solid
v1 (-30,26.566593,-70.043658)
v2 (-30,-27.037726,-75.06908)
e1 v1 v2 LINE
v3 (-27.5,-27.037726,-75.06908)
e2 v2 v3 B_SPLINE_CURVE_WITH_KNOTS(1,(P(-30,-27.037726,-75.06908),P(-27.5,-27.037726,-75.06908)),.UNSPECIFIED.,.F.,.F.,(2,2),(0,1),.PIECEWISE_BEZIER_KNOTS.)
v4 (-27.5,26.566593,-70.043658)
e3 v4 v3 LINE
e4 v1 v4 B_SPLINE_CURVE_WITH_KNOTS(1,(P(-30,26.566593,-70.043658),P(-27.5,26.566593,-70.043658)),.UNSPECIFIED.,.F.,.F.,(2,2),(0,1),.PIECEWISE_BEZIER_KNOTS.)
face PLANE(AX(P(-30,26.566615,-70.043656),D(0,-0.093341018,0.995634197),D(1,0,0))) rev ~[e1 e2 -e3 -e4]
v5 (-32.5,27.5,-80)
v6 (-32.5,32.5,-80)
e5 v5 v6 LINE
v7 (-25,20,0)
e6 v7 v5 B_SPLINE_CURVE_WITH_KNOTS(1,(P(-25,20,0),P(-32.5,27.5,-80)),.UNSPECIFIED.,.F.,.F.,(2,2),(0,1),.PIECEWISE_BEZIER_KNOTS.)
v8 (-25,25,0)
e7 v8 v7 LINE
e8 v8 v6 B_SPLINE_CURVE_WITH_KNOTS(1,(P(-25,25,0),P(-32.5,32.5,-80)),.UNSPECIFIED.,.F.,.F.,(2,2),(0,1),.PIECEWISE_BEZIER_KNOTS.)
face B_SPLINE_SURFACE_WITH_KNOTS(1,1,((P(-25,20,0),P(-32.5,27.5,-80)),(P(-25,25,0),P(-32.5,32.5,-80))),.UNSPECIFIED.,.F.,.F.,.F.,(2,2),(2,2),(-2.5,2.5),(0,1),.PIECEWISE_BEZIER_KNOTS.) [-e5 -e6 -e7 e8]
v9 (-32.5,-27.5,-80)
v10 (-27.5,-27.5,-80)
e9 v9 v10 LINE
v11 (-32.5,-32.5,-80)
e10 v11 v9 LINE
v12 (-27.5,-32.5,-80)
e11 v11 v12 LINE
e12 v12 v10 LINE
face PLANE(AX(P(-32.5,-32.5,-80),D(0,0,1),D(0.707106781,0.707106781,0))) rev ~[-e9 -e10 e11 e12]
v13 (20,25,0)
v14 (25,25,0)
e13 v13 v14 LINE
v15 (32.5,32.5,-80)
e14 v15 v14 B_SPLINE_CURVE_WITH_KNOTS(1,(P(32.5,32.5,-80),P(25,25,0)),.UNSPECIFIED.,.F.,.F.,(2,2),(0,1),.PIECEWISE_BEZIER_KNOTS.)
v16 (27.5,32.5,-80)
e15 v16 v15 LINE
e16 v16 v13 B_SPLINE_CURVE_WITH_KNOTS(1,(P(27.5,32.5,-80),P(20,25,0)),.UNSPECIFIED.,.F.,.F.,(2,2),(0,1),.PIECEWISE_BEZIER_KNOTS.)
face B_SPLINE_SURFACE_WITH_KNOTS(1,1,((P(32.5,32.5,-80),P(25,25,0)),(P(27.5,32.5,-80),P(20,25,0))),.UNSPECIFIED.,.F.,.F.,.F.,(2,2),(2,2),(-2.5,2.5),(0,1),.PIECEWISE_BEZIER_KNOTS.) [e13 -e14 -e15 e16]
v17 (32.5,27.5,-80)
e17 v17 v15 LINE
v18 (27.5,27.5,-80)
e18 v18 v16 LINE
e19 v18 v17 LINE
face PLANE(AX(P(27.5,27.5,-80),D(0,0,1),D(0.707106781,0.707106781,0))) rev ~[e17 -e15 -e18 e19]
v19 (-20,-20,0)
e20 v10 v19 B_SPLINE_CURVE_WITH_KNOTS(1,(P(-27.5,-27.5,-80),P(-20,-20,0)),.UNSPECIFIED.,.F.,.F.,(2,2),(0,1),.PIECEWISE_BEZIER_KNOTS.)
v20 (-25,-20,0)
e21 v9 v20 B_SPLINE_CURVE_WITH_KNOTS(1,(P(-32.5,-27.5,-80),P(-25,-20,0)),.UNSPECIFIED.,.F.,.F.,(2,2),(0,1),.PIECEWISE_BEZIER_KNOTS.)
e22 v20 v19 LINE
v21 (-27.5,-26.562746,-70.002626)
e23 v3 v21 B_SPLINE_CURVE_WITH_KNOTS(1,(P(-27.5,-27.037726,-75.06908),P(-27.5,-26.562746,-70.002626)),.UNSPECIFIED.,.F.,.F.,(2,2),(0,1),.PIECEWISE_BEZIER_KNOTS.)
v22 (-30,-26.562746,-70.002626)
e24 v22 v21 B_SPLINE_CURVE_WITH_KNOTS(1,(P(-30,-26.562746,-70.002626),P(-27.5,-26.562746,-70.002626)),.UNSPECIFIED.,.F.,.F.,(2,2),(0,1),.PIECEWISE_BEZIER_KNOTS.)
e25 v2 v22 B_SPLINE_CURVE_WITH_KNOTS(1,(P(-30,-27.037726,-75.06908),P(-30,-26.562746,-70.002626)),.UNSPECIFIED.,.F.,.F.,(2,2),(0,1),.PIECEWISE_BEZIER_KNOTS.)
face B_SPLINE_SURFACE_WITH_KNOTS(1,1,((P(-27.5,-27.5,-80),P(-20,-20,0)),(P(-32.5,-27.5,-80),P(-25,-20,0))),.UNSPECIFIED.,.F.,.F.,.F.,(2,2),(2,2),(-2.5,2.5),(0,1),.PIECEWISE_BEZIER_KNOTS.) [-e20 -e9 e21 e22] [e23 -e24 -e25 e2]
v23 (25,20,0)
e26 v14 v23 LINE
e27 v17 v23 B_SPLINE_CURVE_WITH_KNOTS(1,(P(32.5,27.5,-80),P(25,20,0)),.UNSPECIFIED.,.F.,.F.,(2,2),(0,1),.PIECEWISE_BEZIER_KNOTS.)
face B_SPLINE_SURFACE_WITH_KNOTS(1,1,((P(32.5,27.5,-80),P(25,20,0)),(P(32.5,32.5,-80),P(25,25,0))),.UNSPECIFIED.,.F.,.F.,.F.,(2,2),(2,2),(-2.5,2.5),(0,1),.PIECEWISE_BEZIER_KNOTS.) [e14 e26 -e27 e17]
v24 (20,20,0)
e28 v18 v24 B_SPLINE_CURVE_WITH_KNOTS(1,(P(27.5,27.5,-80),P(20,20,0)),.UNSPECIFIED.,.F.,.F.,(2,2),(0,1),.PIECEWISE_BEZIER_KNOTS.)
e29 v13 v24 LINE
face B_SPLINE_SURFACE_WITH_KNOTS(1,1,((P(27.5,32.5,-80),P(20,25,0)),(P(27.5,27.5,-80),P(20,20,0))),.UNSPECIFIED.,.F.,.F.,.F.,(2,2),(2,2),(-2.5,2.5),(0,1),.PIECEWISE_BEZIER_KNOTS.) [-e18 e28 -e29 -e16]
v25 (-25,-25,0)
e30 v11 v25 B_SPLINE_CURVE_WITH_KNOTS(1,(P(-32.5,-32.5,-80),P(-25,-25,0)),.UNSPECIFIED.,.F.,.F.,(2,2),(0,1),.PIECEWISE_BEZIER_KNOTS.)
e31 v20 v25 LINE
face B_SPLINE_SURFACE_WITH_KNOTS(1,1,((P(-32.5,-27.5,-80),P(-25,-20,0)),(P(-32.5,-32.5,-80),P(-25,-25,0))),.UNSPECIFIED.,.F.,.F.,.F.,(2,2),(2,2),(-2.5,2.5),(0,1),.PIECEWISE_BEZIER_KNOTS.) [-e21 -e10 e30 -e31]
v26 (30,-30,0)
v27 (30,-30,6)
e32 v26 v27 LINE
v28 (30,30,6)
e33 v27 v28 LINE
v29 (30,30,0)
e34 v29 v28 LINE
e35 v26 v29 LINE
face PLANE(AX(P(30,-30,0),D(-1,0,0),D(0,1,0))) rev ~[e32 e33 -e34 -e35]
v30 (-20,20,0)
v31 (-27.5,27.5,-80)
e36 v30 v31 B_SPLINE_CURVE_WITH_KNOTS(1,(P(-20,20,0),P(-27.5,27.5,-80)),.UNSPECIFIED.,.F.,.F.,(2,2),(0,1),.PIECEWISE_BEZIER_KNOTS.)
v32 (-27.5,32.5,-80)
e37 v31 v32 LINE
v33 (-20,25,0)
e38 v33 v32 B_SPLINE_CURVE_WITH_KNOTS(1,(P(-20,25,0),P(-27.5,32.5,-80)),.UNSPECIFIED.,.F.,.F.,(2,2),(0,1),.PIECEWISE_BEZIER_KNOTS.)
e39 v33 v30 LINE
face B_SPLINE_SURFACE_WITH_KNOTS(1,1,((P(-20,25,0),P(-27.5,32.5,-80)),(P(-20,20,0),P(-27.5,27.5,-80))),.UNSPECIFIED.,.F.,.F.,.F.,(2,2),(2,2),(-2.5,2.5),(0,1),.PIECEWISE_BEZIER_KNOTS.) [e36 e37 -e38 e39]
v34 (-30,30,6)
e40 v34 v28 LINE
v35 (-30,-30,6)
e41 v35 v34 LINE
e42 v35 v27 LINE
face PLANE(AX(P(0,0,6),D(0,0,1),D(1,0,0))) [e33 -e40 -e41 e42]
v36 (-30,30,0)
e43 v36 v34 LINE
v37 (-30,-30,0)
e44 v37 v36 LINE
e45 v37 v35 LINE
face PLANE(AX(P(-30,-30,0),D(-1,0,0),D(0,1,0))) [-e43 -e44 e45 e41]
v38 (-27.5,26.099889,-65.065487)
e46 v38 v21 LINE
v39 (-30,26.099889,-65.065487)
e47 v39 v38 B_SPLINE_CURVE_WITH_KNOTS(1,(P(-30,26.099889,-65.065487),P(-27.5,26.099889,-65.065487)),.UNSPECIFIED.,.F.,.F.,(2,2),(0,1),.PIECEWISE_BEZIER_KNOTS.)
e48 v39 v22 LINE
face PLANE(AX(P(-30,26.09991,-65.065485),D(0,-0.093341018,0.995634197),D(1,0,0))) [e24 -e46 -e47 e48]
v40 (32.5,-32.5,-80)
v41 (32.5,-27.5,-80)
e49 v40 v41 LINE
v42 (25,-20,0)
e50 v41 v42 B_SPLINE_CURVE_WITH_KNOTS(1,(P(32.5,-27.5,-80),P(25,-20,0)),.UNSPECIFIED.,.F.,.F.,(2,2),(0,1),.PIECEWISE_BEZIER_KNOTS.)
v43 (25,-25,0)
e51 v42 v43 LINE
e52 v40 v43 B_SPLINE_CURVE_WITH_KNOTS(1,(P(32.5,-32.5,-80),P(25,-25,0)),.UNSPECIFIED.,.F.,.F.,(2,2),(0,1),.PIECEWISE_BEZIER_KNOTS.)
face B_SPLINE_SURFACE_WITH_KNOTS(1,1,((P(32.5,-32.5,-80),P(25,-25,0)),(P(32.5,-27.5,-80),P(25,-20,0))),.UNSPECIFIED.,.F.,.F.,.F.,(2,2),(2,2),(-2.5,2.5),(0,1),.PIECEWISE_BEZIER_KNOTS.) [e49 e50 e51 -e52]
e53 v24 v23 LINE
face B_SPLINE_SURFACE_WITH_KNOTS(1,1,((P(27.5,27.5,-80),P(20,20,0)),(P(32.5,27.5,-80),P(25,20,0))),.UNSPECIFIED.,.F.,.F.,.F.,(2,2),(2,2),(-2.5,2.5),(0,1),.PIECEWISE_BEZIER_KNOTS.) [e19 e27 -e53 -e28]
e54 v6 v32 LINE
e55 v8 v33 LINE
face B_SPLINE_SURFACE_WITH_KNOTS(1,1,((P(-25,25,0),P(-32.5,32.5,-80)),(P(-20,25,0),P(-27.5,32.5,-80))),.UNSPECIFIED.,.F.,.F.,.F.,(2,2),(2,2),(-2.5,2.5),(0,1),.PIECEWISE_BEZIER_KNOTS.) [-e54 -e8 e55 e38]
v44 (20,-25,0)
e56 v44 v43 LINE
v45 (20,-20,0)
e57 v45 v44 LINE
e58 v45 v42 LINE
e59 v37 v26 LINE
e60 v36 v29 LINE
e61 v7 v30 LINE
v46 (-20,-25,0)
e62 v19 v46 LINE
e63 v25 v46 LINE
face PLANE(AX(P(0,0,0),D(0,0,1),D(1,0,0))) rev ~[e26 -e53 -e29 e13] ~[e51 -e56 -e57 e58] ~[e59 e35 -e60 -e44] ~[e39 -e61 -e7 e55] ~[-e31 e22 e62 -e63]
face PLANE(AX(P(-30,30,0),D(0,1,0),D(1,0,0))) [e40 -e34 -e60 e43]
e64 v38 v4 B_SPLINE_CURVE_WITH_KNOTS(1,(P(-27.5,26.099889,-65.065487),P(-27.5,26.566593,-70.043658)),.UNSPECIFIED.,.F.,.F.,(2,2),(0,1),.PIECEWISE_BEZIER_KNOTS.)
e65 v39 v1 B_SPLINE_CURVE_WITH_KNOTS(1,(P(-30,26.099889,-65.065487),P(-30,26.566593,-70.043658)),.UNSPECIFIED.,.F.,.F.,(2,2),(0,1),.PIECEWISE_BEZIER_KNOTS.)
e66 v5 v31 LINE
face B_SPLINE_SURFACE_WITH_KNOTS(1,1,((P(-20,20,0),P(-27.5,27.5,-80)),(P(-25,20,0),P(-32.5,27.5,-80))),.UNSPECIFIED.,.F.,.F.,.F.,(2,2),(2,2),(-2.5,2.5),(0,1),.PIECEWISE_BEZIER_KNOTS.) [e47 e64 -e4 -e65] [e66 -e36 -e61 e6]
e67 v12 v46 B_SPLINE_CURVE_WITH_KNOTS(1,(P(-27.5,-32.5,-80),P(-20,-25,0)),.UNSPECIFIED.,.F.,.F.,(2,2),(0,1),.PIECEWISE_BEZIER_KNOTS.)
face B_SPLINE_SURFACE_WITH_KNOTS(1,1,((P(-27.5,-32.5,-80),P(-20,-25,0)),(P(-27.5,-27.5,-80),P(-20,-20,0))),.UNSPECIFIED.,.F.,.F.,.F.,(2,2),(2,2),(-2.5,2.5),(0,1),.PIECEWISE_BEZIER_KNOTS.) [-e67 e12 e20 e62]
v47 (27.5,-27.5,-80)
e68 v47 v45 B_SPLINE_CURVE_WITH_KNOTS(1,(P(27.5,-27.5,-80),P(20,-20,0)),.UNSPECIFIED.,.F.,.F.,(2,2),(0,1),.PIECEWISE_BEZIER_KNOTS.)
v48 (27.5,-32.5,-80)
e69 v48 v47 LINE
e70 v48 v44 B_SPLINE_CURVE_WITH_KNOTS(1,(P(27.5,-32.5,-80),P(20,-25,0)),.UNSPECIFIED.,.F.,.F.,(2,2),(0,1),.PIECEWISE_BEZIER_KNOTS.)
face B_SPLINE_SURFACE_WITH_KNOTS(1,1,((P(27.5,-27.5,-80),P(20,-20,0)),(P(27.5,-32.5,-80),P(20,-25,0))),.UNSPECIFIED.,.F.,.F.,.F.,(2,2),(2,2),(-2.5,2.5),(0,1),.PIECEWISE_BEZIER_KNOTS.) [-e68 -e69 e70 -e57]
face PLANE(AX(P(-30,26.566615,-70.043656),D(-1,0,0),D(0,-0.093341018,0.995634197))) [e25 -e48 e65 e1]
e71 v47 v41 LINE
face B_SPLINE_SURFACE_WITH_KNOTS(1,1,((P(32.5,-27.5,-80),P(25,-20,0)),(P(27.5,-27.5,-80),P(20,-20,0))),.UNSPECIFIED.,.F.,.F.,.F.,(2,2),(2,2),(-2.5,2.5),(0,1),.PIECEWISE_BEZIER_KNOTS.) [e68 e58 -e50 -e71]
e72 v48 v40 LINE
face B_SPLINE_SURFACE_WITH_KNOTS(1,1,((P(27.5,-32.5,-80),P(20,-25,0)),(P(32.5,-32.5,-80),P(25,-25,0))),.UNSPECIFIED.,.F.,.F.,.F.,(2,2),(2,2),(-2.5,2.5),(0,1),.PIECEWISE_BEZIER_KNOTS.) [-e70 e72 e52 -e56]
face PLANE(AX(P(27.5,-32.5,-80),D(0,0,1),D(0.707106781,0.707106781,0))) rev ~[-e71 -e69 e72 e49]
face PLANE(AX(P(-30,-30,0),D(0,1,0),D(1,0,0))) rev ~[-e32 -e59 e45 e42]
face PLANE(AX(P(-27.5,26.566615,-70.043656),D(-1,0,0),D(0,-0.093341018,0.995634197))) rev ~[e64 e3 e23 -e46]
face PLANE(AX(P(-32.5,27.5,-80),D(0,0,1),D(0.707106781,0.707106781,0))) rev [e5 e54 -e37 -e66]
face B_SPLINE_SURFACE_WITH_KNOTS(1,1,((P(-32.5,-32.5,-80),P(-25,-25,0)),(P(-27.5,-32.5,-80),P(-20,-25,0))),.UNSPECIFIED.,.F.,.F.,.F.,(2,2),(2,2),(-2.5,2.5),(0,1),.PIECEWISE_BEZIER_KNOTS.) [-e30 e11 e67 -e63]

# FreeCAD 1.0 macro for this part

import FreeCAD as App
import Part
import Sketcher

V = App.Vector
Q = App.Units.Quantity

doc = App.newDocument("Part")
body = doc.addObject("PartDesign::Body", "Body")

# Sketch on XY plane
sketch1 = doc.addObject("Sketcher::SketchObject", "Sketch")
body.addObject(sketch1)
sketch1.AttachmentSupport = (doc.XY_Plane, [""])
sketch1.MapMode = "FlatFace"
sketch1.addGeometry([
    Part.LineSegment(V(-30, 30, 0), V(-30, -30, 0)),
    Part.LineSegment(V(-30, -30, 0), V(30, -30, 0)),
    Part.LineSegment(V(30, -30, 0), V(30, 30, 0)),
    Part.LineSegment(V(30, 30, 0), V(-30, 30, 0)),
], False)
sketch1.addConstraint([
    Sketcher.Constraint("Coincident", 0, 2, 1, 1),
    Sketcher.Constraint("Coincident", 1, 2, 2, 1),
    Sketcher.Constraint("Coincident", 2, 2, 3, 1),
    Sketcher.Constraint("Coincident", 3, 2, 0, 1),
    Sketcher.Constraint("Vertical", 0),
    Sketcher.Constraint("Horizontal", 1),
    Sketcher.Constraint("Vertical", 2),
    Sketcher.Constraint("Horizontal", 3),
    Sketcher.Constraint("Symmetric", 0, 2, 2, 2, -1, 1),
    Sketcher.Constraint("Equal", 3, 0),
    Sketcher.Constraint("DistanceX", 1, 1, 1, 2, Q("60 mm")),
])
pad1 = doc.addObject("PartDesign::Pad", "Pad")
body.addObject(pad1)
pad1.Profile = sketch1
pad1.Length = 6

# Sketch on XY plane
sketch2 = doc.addObject("Sketcher::SketchObject", "Sketch001")
body.addObject(sketch2)
sketch2.AttachmentSupport = (doc.XY_Plane, [""])
sketch2.MapMode = "FlatFace"
sketch2.addGeometry([
    Part.LineSegment(V(-25, 20, 0), V(-25, 25, 0)),
    Part.LineSegment(V(-25, 25, 0), V(-20, 25, 0)),
    Part.LineSegment(V(-20, 25, 0), V(-20, 20, 0)),
    Part.LineSegment(V(-20, 20, 0), V(-25, 20, 0)),
], False)
sketch2.addConstraint([
    Sketcher.Constraint("Coincident", 0, 2, 1, 1),
    Sketcher.Constraint("Coincident", 1, 2, 2, 1),
    Sketcher.Constraint("Coincident", 2, 2, 3, 1),
    Sketcher.Constraint("Coincident", 3, 2, 0, 1),
    Sketcher.Constraint("Vertical", 0),
    Sketcher.Constraint("Horizontal", 1),
    Sketcher.Constraint("Vertical", 2),
    Sketcher.Constraint("Horizontal", 3),
    Sketcher.Constraint("Equal", 3, 0),
    Sketcher.Constraint("DistanceX", 1, 1, 1, 2, Q("5 mm")),
    Sketcher.Constraint("DistanceX", 0, 2, -1, 1, Q("25 mm")),
    Sketcher.Constraint("DistanceY", -1, 1, 0, 2, Q("25 mm")),
])

# Sketch on XY plane
sketch3 = doc.addObject("Sketcher::SketchObject", "Sketch002")
body.addObject(sketch3)
sketch3.AttachmentSupport = (doc.XY_Plane, [""])
sketch3.MapMode = "FlatFace"
sketch3.AttachmentOffset = App.Placement(V(0, 0, -80), App.Rotation())
sketch3.addGeometry([
    Part.LineSegment(V(-32, 32, 0), V(-32, 28, 0)),
    Part.LineSegment(V(-32, 28, 0), V(-28, 28, 0)),
    Part.LineSegment(V(-28, 28, 0), V(-28, 32, 0)),
    Part.LineSegment(V(-28, 32, 0), V(-32, 32, 0)),
], False)
sketch3.addConstraint([
    Sketcher.Constraint("Coincident", 0, 2, 1, 1),
    Sketcher.Constraint("Coincident", 1, 2, 2, 1),
    Sketcher.Constraint("Coincident", 2, 2, 3, 1),
    Sketcher.Constraint("Coincident", 3, 2, 0, 1),
    Sketcher.Constraint("Vertical", 0),
    Sketcher.Constraint("Horizontal", 1),
    Sketcher.Constraint("Vertical", 2),
    Sketcher.Constraint("Horizontal", 3),
    Sketcher.Constraint("Equal", 3, 0),
    Sketcher.Constraint("DistanceX", 1, 1, 1, 2, Q("5 mm")),
    Sketcher.Constraint("DistanceX", 0, 2, -1, 1, Q("32.5 mm")),
    Sketcher.Constraint("DistanceY", -1, 1, 0, 2, Q("27.5 mm")),
])

additiveloft = doc.addObject("PartDesign::AdditiveLoft", "AdditiveLoft")
body.addObject(additiveloft)
additiveloft.Profile = sketch2
additiveloft.Sections = [sketch3]

# Sketch on XY plane
sketch4 = doc.addObject("Sketcher::SketchObject", "Sketch003")
body.addObject(sketch4)
sketch4.AttachmentSupport = (doc.XY_Plane, [""])
sketch4.MapMode = "FlatFace"
sketch4.AttachmentOffset = App.Placement(V(0, 0, -80), App.Rotation())
sketch4.addGeometry([
    Part.LineSegment(V(-32, -28, 0), V(-32, -32, 0)),
    Part.LineSegment(V(-32, -32, 0), V(-28, -32, 0)),
    Part.LineSegment(V(-28, -32, 0), V(-28, -28, 0)),
    Part.LineSegment(V(-28, -28, 0), V(-32, -28, 0)),
], False)
sketch4.addConstraint([
    Sketcher.Constraint("Coincident", 0, 2, 1, 1),
    Sketcher.Constraint("Coincident", 1, 2, 2, 1),
    Sketcher.Constraint("Coincident", 2, 2, 3, 1),
    Sketcher.Constraint("Coincident", 3, 2, 0, 1),
    Sketcher.Constraint("Vertical", 0),
    Sketcher.Constraint("Horizontal", 1),
    Sketcher.Constraint("Vertical", 2),
    Sketcher.Constraint("Horizontal", 3),
    Sketcher.Constraint("Equal", 3, 0),
    Sketcher.Constraint("DistanceX", 1, 1, 1, 2, Q("5 mm")),
    Sketcher.Constraint("DistanceX", 0, 2, -1, 1, Q("32.5 mm")),
    Sketcher.Constraint("DistanceY", 0, 2, -1, 1, Q("32.5 mm")),
])

# Sketch on XY plane
sketch5 = doc.addObject("Sketcher::SketchObject", "Sketch004")
body.addObject(sketch5)
sketch5.AttachmentSupport = (doc.XY_Plane, [""])
sketch5.MapMode = "FlatFace"
sketch5.addGeometry([
    Part.LineSegment(V(-25, -25, 0), V(-25, -20, 0)),
    Part.LineSegment(V(-25, -20, 0), V(-20, -20, 0)),
    Part.LineSegment(V(-20, -20, 0), V(-20, -25, 0)),
    Part.LineSegment(V(-20, -25, 0), V(-25, -25, 0)),
], False)
sketch5.addConstraint([
    Sketcher.Constraint("Coincident", 0, 2, 1, 1),
    Sketcher.Constraint("Coincident", 1, 2, 2, 1),
    Sketcher.Constraint("Coincident", 2, 2, 3, 1),
    Sketcher.Constraint("Coincident", 3, 2, 0, 1),
    Sketcher.Constraint("Vertical", 0),
    Sketcher.Constraint("Horizontal", 1),
    Sketcher.Constraint("Vertical", 2),
    Sketcher.Constraint("Horizontal", 3),
    Sketcher.Constraint("Equal", 3, 0),
    Sketcher.Constraint("DistanceX", 1, 1, 1, 2, Q("5 mm")),
    Sketcher.Constraint("DistanceX", 0, 2, -1, 1, Q("25 mm")),
    Sketcher.Constraint("DistanceY", 0, 2, -1, 1, Q("20 mm")),
])

additiveloft2 = doc.addObject("PartDesign::AdditiveLoft", "AdditiveLoft001")
body.addObject(additiveloft2)
additiveloft2.Profile = sketch4
additiveloft2.Sections = [sketch5]

# Sketch on XY plane
sketch6 = doc.addObject("Sketcher::SketchObject", "Sketch005")
body.addObject(sketch6)
sketch6.AttachmentSupport = (doc.XY_Plane, [""])
sketch6.MapMode = "FlatFace"
sketch6.AttachmentOffset = App.Placement(V(0, 0, -80), App.Rotation())
sketch6.addGeometry([
    Part.LineSegment(V(28, -28, 0), V(28, -32, 0)),
    Part.LineSegment(V(28, -32, 0), V(32, -32, 0)),
    Part.LineSegment(V(32, -32, 0), V(32, -28, 0)),
    Part.LineSegment(V(32, -28, 0), V(28, -28, 0)),
], False)
sketch6.addConstraint([
    Sketcher.Constraint("Coincident", 0, 2, 1, 1),
    Sketcher.Constraint("Coincident", 1, 2, 2, 1),
    Sketcher.Constraint("Coincident", 2, 2, 3, 1),
    Sketcher.Constraint("Coincident", 3, 2, 0, 1),
    Sketcher.Constraint("Vertical", 0),
    Sketcher.Constraint("Horizontal", 1),
    Sketcher.Constraint("Vertical", 2),
    Sketcher.Constraint("Horizontal", 3),
    Sketcher.Constraint("Equal", 3, 0),
    Sketcher.Constraint("DistanceX", 1, 1, 1, 2, Q("5 mm")),
    Sketcher.Constraint("DistanceX", -1, 1, 0, 2, Q("27.5 mm")),
    Sketcher.Constraint("DistanceY", 0, 2, -1, 1, Q("32.5 mm")),
])

# Sketch on XY plane
sketch7 = doc.addObject("Sketcher::SketchObject", "Sketch006")
body.addObject(sketch7)
sketch7.AttachmentSupport = (doc.XY_Plane, [""])
sketch7.MapMode = "FlatFace"
sketch7.addGeometry([
    Part.LineSegment(V(20, -25, 0), V(20, -20, 0)),
    Part.LineSegment(V(20, -20, 0), V(25, -20, 0)),
    Part.LineSegment(V(25, -20, 0), V(25, -25, 0)),
    Part.LineSegment(V(25, -25, 0), V(20, -25, 0)),
], False)
sketch7.addConstraint([
    Sketcher.Constraint("Coincident", 0, 2, 1, 1),
    Sketcher.Constraint("Coincident", 1, 2, 2, 1),
    Sketcher.Constraint("Coincident", 2, 2, 3, 1),
    Sketcher.Constraint("Coincident", 3, 2, 0, 1),
    Sketcher.Constraint("Vertical", 0),
    Sketcher.Constraint("Horizontal", 1),
    Sketcher.Constraint("Vertical", 2),
    Sketcher.Constraint("Horizontal", 3),
    Sketcher.Constraint("Equal", 3, 0),
    Sketcher.Constraint("DistanceX", 1, 1, 1, 2, Q("5 mm")),
    Sketcher.Constraint("DistanceX", -1, 1, 0, 2, Q("20 mm")),
    Sketcher.Constraint("DistanceY", 0, 2, -1, 1, Q("20 mm")),
])

additiveloft3 = doc.addObject("PartDesign::AdditiveLoft", "AdditiveLoft002")
body.addObject(additiveloft3)
additiveloft3.Profile = sketch6
additiveloft3.Sections = [sketch7]

# Sketch on XY plane
sketch8 = doc.addObject("Sketcher::SketchObject", "Sketch007")
body.addObject(sketch8)
sketch8.AttachmentSupport = (doc.XY_Plane, [""])
sketch8.MapMode = "FlatFace"
sketch8.AttachmentOffset = App.Placement(V(0, 0, -80), App.Rotation())
sketch8.addGeometry([
    Part.LineSegment(V(28, 32, 0), V(28, 28, 0)),
    Part.LineSegment(V(28, 28, 0), V(32, 28, 0)),
    Part.LineSegment(V(32, 28, 0), V(32, 32, 0)),
    Part.LineSegment(V(32, 32, 0), V(28, 32, 0)),
], False)
sketch8.addConstraint([
    Sketcher.Constraint("Coincident", 0, 2, 1, 1),
    Sketcher.Constraint("Coincident", 1, 2, 2, 1),
    Sketcher.Constraint("Coincident", 2, 2, 3, 1),
    Sketcher.Constraint("Coincident", 3, 2, 0, 1),
    Sketcher.Constraint("Vertical", 0),
    Sketcher.Constraint("Horizontal", 1),
    Sketcher.Constraint("Vertical", 2),
    Sketcher.Constraint("Horizontal", 3),
    Sketcher.Constraint("Equal", 3, 0),
    Sketcher.Constraint("DistanceX", 1, 1, 1, 2, Q("5 mm")),
    Sketcher.Constraint("DistanceX", -1, 1, 0, 2, Q("27.5 mm")),
    Sketcher.Constraint("DistanceY", -1, 1, 0, 2, Q("27.5 mm")),
])

# Sketch on XY plane
sketch9 = doc.addObject("Sketcher::SketchObject", "Sketch008")
body.addObject(sketch9)
sketch9.AttachmentSupport = (doc.XY_Plane, [""])
sketch9.MapMode = "FlatFace"
sketch9.addGeometry([
    Part.LineSegment(V(20, 20, 0), V(20, 25, 0)),
    Part.LineSegment(V(20, 25, 0), V(25, 25, 0)),
    Part.LineSegment(V(25, 25, 0), V(25, 20, 0)),
    Part.LineSegment(V(25, 20, 0), V(20, 20, 0)),
], False)
sketch9.addConstraint([
    Sketcher.Constraint("Coincident", 0, 2, 1, 1),
    Sketcher.Constraint("Coincident", 1, 2, 2, 1),
    Sketcher.Constraint("Coincident", 2, 2, 3, 1),
    Sketcher.Constraint("Coincident", 3, 2, 0, 1),
    Sketcher.Constraint("Vertical", 0),
    Sketcher.Constraint("Horizontal", 1),
    Sketcher.Constraint("Vertical", 2),
    Sketcher.Constraint("Horizontal", 3),
    Sketcher.Constraint("Equal", 3, 0),
    Sketcher.Constraint("DistanceX", 1, 1, 1, 2, Q("5 mm")),
    Sketcher.Constraint("DistanceX", -1, 1, 0, 2, Q("20 mm")),
    Sketcher.Constraint("DistanceY", -1, 1, 0, 2, Q("25 mm")),
])

additiveloft4 = doc.addObject("PartDesign::AdditiveLoft", "AdditiveLoft003")
body.addObject(additiveloft4)
additiveloft4.Profile = sketch8
additiveloft4.Sections = [sketch9]

# Sketch on an angled plane
sketch10 = doc.addObject("Sketcher::SketchObject", "Sketch009")
body.addObject(sketch10)
sketch10.Placement = App.Placement(V(0, 19.82575, 1.858664), App.Rotation(V(1, 0, 0), V(0, -0.093341018, 0.995634197), V(0, -0.995634197, -0.093341018), "ZXY"))
sketch10.addGeometry([
    Part.LineSegment(V(-30, -67.2, 0), V(-30, -72.2, 0)),
    Part.LineSegment(V(-30, -72.2, 0), V(-27.5, -72.2, 0)),
    Part.LineSegment(V(-27.5, -72.2, 0), V(-27.5, -67.2, 0)),
    Part.LineSegment(V(-27.5, -67.2, 0), V(-30, -67.2, 0)),
], False)
sketch10.addConstraint([
    Sketcher.Constraint("Coincident", 0, 2, 1, 1),
    Sketcher.Constraint("Coincident", 1, 2, 2, 1),
    Sketcher.Constraint("Coincident", 2, 2, 3, 1),
    Sketcher.Constraint("Coincident", 3, 2, 0, 1),
    Sketcher.Constraint("Vertical", 0),
    Sketcher.Constraint("Horizontal", 1),
    Sketcher.Constraint("Vertical", 2),
    Sketcher.Constraint("Horizontal", 3),
    Sketcher.Constraint("DistanceY", 0, 2, 0, 1, Q("5 mm")),
    Sketcher.Constraint("DistanceX", 1, 1, 1, 2, Q("2.5 mm")),
    Sketcher.Constraint("DistanceX", 0, 2, -1, 1, Q("30 mm")),
    Sketcher.Constraint("DistanceY", 0, 2, -1, 1, Q("72.217608 mm")),
])
pad2 = doc.addObject("PartDesign::Pad", "Pad001")
body.addObject(pad2)
pad2.Profile = sketch10
pad2.Length = 55

doc.recompute()
